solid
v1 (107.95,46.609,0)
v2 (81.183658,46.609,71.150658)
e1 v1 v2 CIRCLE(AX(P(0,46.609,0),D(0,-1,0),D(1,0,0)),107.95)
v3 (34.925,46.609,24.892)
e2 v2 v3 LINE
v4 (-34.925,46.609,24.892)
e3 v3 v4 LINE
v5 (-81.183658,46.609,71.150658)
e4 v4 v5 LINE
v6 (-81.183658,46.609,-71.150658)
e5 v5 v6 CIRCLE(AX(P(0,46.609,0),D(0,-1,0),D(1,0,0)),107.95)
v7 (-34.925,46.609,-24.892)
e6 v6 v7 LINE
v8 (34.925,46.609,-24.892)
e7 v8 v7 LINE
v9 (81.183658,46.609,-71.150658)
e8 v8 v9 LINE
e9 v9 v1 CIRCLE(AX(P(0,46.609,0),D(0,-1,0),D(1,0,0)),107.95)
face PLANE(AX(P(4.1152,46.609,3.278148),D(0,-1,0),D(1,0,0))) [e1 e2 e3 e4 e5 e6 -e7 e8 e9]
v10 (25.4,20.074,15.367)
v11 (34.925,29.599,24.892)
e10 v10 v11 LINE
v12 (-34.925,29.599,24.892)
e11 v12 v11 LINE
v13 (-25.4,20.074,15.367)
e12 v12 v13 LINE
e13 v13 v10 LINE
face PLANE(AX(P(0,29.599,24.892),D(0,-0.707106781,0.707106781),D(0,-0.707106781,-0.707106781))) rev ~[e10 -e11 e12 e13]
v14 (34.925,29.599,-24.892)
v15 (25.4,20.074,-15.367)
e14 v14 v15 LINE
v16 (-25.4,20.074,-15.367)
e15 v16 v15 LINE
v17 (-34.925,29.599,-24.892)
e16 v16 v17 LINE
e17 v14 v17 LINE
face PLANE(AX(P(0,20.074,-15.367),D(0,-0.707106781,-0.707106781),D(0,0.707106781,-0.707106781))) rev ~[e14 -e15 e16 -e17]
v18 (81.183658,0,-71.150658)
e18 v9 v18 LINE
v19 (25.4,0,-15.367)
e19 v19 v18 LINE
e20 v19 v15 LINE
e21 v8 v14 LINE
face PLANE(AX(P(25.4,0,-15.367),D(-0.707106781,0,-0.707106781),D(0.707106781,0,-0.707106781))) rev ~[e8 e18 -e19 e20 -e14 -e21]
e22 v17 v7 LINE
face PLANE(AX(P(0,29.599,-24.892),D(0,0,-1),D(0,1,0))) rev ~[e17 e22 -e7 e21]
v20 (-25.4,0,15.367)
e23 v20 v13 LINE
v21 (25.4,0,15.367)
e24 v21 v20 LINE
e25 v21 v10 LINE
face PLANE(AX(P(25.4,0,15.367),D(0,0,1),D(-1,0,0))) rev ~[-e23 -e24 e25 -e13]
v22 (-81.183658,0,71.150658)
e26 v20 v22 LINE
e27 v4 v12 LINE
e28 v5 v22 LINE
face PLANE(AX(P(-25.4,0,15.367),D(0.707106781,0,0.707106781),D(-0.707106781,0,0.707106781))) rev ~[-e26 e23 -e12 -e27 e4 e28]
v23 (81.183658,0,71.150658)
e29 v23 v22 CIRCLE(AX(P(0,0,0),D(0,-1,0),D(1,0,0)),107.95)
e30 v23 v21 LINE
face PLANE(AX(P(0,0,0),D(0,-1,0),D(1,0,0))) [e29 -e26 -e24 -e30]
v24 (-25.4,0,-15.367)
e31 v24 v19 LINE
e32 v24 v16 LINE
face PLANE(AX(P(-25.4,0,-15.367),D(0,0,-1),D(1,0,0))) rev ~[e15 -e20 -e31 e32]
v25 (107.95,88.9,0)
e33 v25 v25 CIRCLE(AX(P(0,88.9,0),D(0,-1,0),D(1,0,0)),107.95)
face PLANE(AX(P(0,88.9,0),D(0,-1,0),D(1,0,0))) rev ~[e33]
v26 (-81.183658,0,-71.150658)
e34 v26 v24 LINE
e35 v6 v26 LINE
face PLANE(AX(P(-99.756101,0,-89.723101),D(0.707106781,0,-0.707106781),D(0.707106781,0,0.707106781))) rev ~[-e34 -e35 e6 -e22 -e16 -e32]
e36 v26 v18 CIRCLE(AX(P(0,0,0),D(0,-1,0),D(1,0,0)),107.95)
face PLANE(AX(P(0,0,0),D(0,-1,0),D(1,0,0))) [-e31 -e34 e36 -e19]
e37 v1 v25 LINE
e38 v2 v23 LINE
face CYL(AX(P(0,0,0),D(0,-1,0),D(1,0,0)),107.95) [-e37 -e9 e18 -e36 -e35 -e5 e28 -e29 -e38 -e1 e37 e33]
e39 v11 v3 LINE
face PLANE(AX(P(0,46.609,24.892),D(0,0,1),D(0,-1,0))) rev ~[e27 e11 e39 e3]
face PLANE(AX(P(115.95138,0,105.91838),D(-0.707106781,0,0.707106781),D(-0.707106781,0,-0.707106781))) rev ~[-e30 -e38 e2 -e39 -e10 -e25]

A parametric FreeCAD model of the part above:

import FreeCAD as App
import Part
import Sketcher
from FreeCAD import Vector
Q = App.Units.Quantity

doc = App.newDocument("Part")
body = doc.addObject("PartDesign::Body", "Body")

# Sketch on XZ plane
sketch1 = body.newObject("Sketcher::SketchObject", "Sketch")
sketch1.AttachmentSupport = (doc.getObject("XZ_Plane"), [""])
sketch1.MapMode = "FlatFace"
sketch1.addGeometry(Part.Circle(Vector(0, 0, 0), Vector(0, 0, 1), 108), False)
sketch1.addConstraint([
    Sketcher.Constraint("Coincident", 0, 3, -1, 1),
    Sketcher.Constraint("Diameter", 0, Q("8.5 in")),
])
pad1 = body.newObject("PartDesign::Pad", "Pad")
pad1.Profile = sketch1
pad1.Length = Q("3.5 in")
pad1.Reversed = True

# Sketch on XZ plane
sketch2 = body.newObject("Sketcher::SketchObject", "Sketch001")
sketch2.AttachmentSupport = (doc.getObject("XZ_Plane"), [""])
sketch2.MapMode = "FlatFace"
sketch2.addGeometry([
    Part.LineSegment(Vector(25, 15, 0), Vector(-25, 15, 0)),  # 0
    Part.LineSegment(Vector(-25, 15, 0), Vector(-112, 102, 0)),  # 1
    Part.LineSegment(Vector(-112, 102, 0), Vector(-112, -81, 0)),  # 2
    Part.LineSegment(Vector(-112, -81, 0), Vector(-100, -90, 0)),  # 3
    Part.LineSegment(Vector(-100, -90, 0), Vector(-25, -15, 0)),  # 4
    Part.LineSegment(Vector(-25, -15, 0), Vector(25, -15, 0)),  # 5
    Part.LineSegment(Vector(25, -15, 0), Vector(112, -102, 0)),  # 6
    Part.LineSegment(Vector(112, -102, 0), Vector(116, 106, 0)),  # 7
    Part.LineSegment(Vector(116, 106, 0), Vector(25, 15, 0)),  # 8
], False)
sketch2.addConstraint([
    Sketcher.Constraint("Coincident", 0, 2, 1, 1),
    Sketcher.Constraint("Coincident", 1, 2, 2, 1),
    Sketcher.Constraint("Coincident", 2, 2, 3, 1),
    Sketcher.Constraint("Coincident", 3, 2, 4, 1),
    Sketcher.Constraint("Coincident", 4, 2, 5, 1),
    Sketcher.Constraint("Coincident", 5, 2, 6, 1),
    Sketcher.Constraint("Coincident", 6, 2, 7, 1),
    Sketcher.Constraint("Coincident", 7, 2, 8, 1),
    Sketcher.Constraint("Coincident", 8, 2, 0, 1),
    Sketcher.Constraint("Horizontal", 0),
    Sketcher.Constraint("Vertical", 2),
    Sketcher.Constraint("Horizontal", 5),
    Sketcher.Constraint("Symmetric", 0, 2, 5, 2, -1, 1),
    Sketcher.Constraint("Perpendicular", 1, 4),
    Sketcher.Constraint("Perpendicular", 4, 6),
    Sketcher.Constraint("Perpendicular", 6, 8),
    Sketcher.Constraint("Vertical", 0, 2, 4, 2),
    Sketcher.Constraint("Vertical", 5, 2, 8, 2),
    Sketcher.Constraint("DistanceX", 0, 2, 0, 1, Q("2 in")),
    Sketcher.Constraint("Angle", 1, Q("135 deg")),
    Sketcher.Constraint("DistanceY", 4, 2, 0, 2, Q("1.21 in")),
    Sketcher.Constraint("DistanceX", 3, 2, -1, 1, 99.756101),
    Sketcher.Constraint("DistanceY", 1, 2, 7, 2, 3.7457),
    Sketcher.Constraint("Distance", 1, 122.76177),
    Sketcher.Constraint("Distance", 7, 208.209358),
    Sketcher.Constraint("DistanceY", 2, 2, 2, 1, 183.526933),
])
pocket1 = body.newObject("PartDesign::Pocket", "Pocket")
pocket1.Profile = sketch2
pocket1.Length = Q("1.835 in")

# Sketch on YZ plane
sketch3 = body.newObject("Sketcher::SketchObject", "Sketch002")
sketch3.AttachmentSupport = (doc.getObject("YZ_Plane"), [""])
sketch3.MapMode = "FlatFace"
sketch3.addGeometry([
    Part.LineSegment(Vector(47, 25, 0), Vector(30, 25, 0)),  # 0
    Part.LineSegment(Vector(30, 25, 0), Vector(20, 15, 0)),  # 1
    Part.LineSegment(Vector(20, 15, 0), Vector(-11, 15, 0)),  # 2
    Part.LineSegment(Vector(-11, 15, 0), Vector(-11, -15, 0)),  # 3
    Part.LineSegment(Vector(-11, -15, 0), Vector(20, -15, 0)),  # 4
    Part.LineSegment(Vector(20, -15, 0), Vector(30, -25, 0)),  # 5
    Part.LineSegment(Vector(30, -25, 0), Vector(47, -25, 0)),  # 6
    Part.LineSegment(Vector(47, -25, 0), Vector(47, 25, 0)),  # 7
], False)
sketch3.addConstraint([
    Sketcher.Constraint("Coincident", 0, 2, 1, 1),
    Sketcher.Constraint("Coincident", 1, 2, 2, 1),
    Sketcher.Constraint("Coincident", 2, 2, 3, 1),
    Sketcher.Constraint("Coincident", 3, 2, 4, 1),
    Sketcher.Constraint("Coincident", 4, 2, 5, 1),
    Sketcher.Constraint("Coincident", 5, 2, 6, 1),
    Sketcher.Constraint("Coincident", 6, 2, 7, 1),
    Sketcher.Constraint("Coincident", 7, 2, 0, 1),
    Sketcher.Constraint("Horizontal", 0),
    Sketcher.Constraint("Horizontal", 2),
    Sketcher.Constraint("Vertical", 3),
    Sketcher.Constraint("Horizontal", 6),
    Sketcher.Constraint("Vertical", 7),
    Sketcher.Constraint("Symmetric", 1, 2, 4, 2, -1),
    Sketcher.Constraint("Symmetric", 0, 2, 5, 2, -1),
    Sketcher.Constraint("Perpendicular", 1, 5),
    Sketcher.Constraint("DistanceY", 7, 1, 7, 2, Q("1.96 in")),
    Sketcher.Constraint("DistanceY", 4, 2, 1, 2, Q("1.21 in")),
    Sketcher.Constraint("DistanceX", -1, 1, 6, 2, Q("1.835 in")),
    Sketcher.Constraint("DistanceX", 0, 2, 0, 1, 17.01),
    Sketcher.Constraint("DistanceX", 2, 2, 2, 1, 30.622349),
    Sketcher.Constraint("DistanceY", 3, 2, 3, 1, 30.384238),
])
pocket2 = body.newObject("PartDesign::Pocket", "Pocket001")
pocket2.Profile = sketch3
pocket2.Length = 200
pocket2.Midplane = True

doc.recompute()
